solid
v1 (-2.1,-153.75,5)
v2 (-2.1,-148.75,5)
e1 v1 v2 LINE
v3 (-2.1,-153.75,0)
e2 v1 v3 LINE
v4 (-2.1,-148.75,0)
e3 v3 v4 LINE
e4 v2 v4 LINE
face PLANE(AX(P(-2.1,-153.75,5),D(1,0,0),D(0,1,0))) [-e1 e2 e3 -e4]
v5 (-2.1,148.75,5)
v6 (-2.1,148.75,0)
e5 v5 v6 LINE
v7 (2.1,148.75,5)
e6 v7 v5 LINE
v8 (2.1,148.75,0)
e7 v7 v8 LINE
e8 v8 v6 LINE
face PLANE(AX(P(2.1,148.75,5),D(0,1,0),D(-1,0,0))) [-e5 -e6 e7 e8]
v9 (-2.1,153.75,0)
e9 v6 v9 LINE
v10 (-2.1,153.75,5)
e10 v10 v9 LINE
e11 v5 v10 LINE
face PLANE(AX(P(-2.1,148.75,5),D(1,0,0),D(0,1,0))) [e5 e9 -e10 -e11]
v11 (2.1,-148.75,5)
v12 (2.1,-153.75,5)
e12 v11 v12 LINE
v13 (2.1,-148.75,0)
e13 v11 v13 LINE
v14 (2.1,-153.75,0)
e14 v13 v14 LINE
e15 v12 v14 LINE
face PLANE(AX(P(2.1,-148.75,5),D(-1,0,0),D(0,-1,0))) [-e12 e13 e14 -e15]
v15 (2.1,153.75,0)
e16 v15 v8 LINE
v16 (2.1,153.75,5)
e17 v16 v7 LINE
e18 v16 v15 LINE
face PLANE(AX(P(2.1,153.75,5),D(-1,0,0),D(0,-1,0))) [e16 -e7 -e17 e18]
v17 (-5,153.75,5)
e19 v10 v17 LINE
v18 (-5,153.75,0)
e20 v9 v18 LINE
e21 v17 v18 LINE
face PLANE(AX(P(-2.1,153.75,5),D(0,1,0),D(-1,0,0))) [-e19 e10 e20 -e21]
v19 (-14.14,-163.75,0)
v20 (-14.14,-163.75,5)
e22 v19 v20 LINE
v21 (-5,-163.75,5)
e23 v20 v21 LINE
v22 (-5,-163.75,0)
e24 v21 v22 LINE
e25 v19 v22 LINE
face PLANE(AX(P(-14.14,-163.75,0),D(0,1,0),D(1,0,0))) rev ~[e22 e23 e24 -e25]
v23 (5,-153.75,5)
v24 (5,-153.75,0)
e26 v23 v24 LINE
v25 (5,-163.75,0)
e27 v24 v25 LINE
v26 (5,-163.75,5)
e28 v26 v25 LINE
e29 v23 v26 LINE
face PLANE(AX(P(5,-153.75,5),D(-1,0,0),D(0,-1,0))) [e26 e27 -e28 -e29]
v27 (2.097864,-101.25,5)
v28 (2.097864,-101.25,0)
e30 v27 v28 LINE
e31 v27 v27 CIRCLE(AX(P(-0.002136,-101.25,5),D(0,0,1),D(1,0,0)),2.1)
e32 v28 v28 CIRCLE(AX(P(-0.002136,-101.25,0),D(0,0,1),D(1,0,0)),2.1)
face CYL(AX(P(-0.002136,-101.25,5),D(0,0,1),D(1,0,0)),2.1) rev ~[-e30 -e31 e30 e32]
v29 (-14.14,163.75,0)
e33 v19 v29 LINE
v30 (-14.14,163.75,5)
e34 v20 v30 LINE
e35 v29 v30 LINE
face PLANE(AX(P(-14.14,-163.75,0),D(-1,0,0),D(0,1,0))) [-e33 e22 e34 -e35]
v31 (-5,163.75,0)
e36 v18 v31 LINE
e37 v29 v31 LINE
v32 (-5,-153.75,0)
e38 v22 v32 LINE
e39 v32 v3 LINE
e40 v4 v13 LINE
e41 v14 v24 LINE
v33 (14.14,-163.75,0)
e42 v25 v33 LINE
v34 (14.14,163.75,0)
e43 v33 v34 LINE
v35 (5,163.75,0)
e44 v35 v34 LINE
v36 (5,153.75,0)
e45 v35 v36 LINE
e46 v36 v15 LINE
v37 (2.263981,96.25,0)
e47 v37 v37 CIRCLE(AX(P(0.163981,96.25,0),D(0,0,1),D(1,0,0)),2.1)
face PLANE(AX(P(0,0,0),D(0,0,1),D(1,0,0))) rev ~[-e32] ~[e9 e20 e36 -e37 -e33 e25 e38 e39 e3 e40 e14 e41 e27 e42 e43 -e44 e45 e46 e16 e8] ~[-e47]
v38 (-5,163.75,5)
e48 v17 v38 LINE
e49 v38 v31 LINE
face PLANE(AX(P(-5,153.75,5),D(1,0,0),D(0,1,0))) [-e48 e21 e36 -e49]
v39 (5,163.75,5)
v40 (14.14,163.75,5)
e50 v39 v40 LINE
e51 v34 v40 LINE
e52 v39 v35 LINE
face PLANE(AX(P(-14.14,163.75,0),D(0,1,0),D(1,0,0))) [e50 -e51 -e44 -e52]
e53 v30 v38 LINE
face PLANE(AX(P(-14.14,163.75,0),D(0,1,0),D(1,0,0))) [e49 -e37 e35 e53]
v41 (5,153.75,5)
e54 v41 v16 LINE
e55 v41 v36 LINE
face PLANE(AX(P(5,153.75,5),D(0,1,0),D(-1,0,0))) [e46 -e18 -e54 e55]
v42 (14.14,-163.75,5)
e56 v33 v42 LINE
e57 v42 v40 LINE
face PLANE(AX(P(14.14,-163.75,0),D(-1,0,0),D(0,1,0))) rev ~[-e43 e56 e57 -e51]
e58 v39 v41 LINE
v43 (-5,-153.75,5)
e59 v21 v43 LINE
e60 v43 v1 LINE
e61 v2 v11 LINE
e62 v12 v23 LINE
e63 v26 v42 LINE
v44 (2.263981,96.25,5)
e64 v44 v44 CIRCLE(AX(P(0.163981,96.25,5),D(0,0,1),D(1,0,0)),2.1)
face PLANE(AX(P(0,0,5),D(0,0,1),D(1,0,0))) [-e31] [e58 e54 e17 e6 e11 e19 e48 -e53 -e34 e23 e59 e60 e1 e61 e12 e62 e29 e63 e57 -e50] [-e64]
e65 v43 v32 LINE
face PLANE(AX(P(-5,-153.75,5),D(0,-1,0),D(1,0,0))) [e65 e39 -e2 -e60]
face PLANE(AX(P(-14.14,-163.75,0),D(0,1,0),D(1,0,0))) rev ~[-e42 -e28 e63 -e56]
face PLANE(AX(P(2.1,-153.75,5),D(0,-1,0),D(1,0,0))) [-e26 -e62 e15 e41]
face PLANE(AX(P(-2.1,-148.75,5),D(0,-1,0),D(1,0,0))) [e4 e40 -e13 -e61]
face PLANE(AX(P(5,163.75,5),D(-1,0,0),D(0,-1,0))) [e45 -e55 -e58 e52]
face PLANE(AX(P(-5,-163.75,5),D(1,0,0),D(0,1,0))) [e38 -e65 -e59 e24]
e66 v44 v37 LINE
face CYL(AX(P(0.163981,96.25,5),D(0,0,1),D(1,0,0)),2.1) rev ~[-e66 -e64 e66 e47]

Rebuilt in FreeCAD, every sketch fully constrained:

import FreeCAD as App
import Part
import Sketcher
from FreeCAD import Vector

doc = App.newDocument("Part")
body = doc.addObject("PartDesign::Body", "Body")

# Sketch on XY plane
sketch1 = body.newObject("Sketcher::SketchObject", "Sketch")
sketch1.AttachmentSupport = (doc.getObject("XY_Plane"), [""])
sketch1.MapMode = "FlatFace"
sketch1.addGeometry([
    Part.LineSegment(Vector(-14.14, 163.75, 0), Vector(-14.14, -163.75, 0)),
    Part.LineSegment(Vector(-14.14, -163.75, 0), Vector(14.14, -163.75, 0)),
    Part.LineSegment(Vector(14.14, -163.75, 0), Vector(14.14, 163.75, 0)),
    Part.LineSegment(Vector(14.14, 163.75, 0), Vector(-14.14, 163.75, 0)),
], False)
sketch1.addConstraint([
    Sketcher.Constraint("Coincident", 0, 2, 1, 1),
    Sketcher.Constraint("Coincident", 1, 2, 2, 1),
    Sketcher.Constraint("Coincident", 2, 2, 3, 1),
    Sketcher.Constraint("Coincident", 3, 2, 0, 1),
    Sketcher.Constraint("Vertical", 0),
    Sketcher.Constraint("Horizontal", 1),
    Sketcher.Constraint("Vertical", 2),
    Sketcher.Constraint("Horizontal", 3),
    Sketcher.Constraint("Symmetric", 0, 2, 2, 2, -1, 1),
    Sketcher.Constraint("DistanceY", 0, 2, 0, 1, 327.5),
    Sketcher.Constraint("DistanceX", 1, 1, 1, 2, 28.28),
])
pad1 = body.newObject("PartDesign::Pad", "Pad")
pad1.Profile = sketch1
pad1.Length = 5

# Sketch on XY plane
sketch2 = body.newObject("Sketcher::SketchObject", "Sketch001")
sketch2.AttachmentSupport = (doc.getObject("XY_Plane"), [""])
sketch2.MapMode = "FlatFace"
sketch2.AttachmentOffset = App.Placement(Vector(0, 0, 5), App.Rotation())
sketch2.addGeometry([
    Part.Circle(Vector(0.163981, 96.25, 0), Vector(0, 0, 1), 2.1),  # 0
    Part.LineSegment(Vector(5, 153.75, 0), Vector(5, 163.75, 0)),  # 1
    Part.LineSegment(Vector(5, 163.75, 0), Vector(-5, 163.75, 0)),  # 2
    Part.LineSegment(Vector(-5, 163.75, 0), Vector(-5, 153.75, 0)),  # 3
    Part.LineSegment(Vector(-5, 153.75, 0), Vector(-2.1, 153.75, 0)),  # 4
    Part.LineSegment(Vector(-2.1, 153.75, 0), Vector(-2.1, 148.75, 0)),  # 5
    Part.LineSegment(Vector(-2.1, 148.75, 0), Vector(2.1, 148.75, 0)),  # 6
    Part.LineSegment(Vector(2.1, 148.75, 0), Vector(2.1, 153.75, 0)),  # 7
    Part.LineSegment(Vector(2.1, 153.75, 0), Vector(5, 153.75, 0)),  # 8
    Part.LineSegment(Vector(-5, -153.75, 0), Vector(-5, -163.75, 0)),  # 9
    Part.LineSegment(Vector(-5, -163.75, 0), Vector(5, -163.75, 0)),  # 10
    Part.LineSegment(Vector(5, -163.75, 0), Vector(5, -153.75, 0)),  # 11
    Part.LineSegment(Vector(5, -153.75, 0), Vector(2.1, -153.75, 0)),  # 12
    Part.LineSegment(Vector(2.1, -153.75, 0), Vector(2.1, -148.75, 0)),  # 13
    Part.LineSegment(Vector(2.1, -148.75, 0), Vector(-2.1, -148.75, 0)),  # 14
    Part.LineSegment(Vector(-2.1, -148.75, 0), Vector(-2.1, -153.75, 0)),  # 15
    Part.LineSegment(Vector(-2.1, -153.75, 0), Vector(-5, -153.75, 0)),  # 16
], False)
sketch2.addConstraint([
    Sketcher.Constraint("Coincident", 1, 2, 2, 1),
    Sketcher.Constraint("Coincident", 2, 2, 3, 1),
    Sketcher.Constraint("Coincident", 3, 2, 4, 1),
    Sketcher.Constraint("Coincident", 4, 2, 5, 1),
    Sketcher.Constraint("Coincident", 5, 2, 6, 1),
    Sketcher.Constraint("Coincident", 6, 2, 7, 1),
    Sketcher.Constraint("Coincident", 7, 2, 8, 1),
    Sketcher.Constraint("Coincident", 8, 2, 1, 1),
    Sketcher.Constraint("Coincident", 9, 2, 10, 1),
    Sketcher.Constraint("Coincident", 10, 2, 11, 1),
    Sketcher.Constraint("Coincident", 11, 2, 12, 1),
    Sketcher.Constraint("Coincident", 12, 2, 13, 1),
    Sketcher.Constraint("Coincident", 13, 2, 14, 1),
    Sketcher.Constraint("Coincident", 14, 2, 15, 1),
    Sketcher.Constraint("Coincident", 15, 2, 16, 1),
    Sketcher.Constraint("Coincident", 16, 2, 9, 1),
    Sketcher.Constraint("Vertical", 1),
    Sketcher.Constraint("Horizontal", 2),
    Sketcher.Constraint("Vertical", 3),
    Sketcher.Constraint("Horizontal", 4),
    Sketcher.Constraint("Vertical", 5),
    Sketcher.Constraint("Horizontal", 6),
    Sketcher.Constraint("Vertical", 7),
    Sketcher.Constraint("Horizontal", 8),
    Sketcher.Constraint("Vertical", 9),
    Sketcher.Constraint("Horizontal", 10),
    Sketcher.Constraint("Vertical", 11),
    Sketcher.Constraint("Horizontal", 12),
    Sketcher.Constraint("Vertical", 13),
    Sketcher.Constraint("Horizontal", 14),
    Sketcher.Constraint("Vertical", 15),
    Sketcher.Constraint("Horizontal", 16),
    Sketcher.Constraint("Symmetric", 1, 2, 9, 2, -1, 1),
    Sketcher.Constraint("Symmetric", 3, 2, 11, 2, -1, 1),
    Sketcher.Constraint("Symmetric", 5, 2, 13, 2, -1, 1),
    Sketcher.Constraint("Symmetric", 7, 2, 15, 2, -1, 1),
    Sketcher.Constraint("Symmetric", 4, 2, 7, 2, -2),
    Sketcher.Constraint("Vertical", 3, 2, 9, 2),
    Sketcher.Constraint("Equal", 10, 1),
    Sketcher.Constraint("Diameter", 0, 4.2),
    Sketcher.Constraint("DistanceX", 2, 2, 2, 1, 10.0),
    Sketcher.Constraint("DistanceY", 5, 2, 5, 1, 5.0),
    Sketcher.Constraint("DistanceX", 4, 1, 4, 2, 2.9),
    Sketcher.Constraint("DistanceY", 9, 2, 0, 3, 260.0),
    Sketcher.Constraint("DistanceY", 0, 3, 1, 2, 67.5),
    Sketcher.Constraint("DistanceX", -1, 1, 0, 3, 0.163981),
])
pocket1 = body.newObject("PartDesign::Pocket", "Pocket")
pocket1.Profile = sketch2
pocket1.Length = 10

# Sketch on XY plane
sketch3 = body.newObject("Sketcher::SketchObject", "Sketch002")
sketch3.AttachmentSupport = (doc.getObject("XY_Plane"), [""])
sketch3.MapMode = "FlatFace"
sketch3.AttachmentOffset = App.Placement(Vector(0, 0, 5), App.Rotation())
sketch3.addGeometry(Part.Circle(Vector(-0.002136, -101.25, 0), Vector(0, 0, 1), 2.1), False)
sketch3.addConstraint([
    Sketcher.Constraint("Diameter", 0, 4.2),
    Sketcher.Constraint("DistanceY", 0, 3, -1, 1, 101.25),
    Sketcher.Constraint("DistanceX", 0, 3, -1, 1, 0.002136),
])
pocket2 = body.newObject("PartDesign::Pocket", "Pocket001")
pocket2.Profile = sketch3
pocket2.Length = 10

doc.recompute()
